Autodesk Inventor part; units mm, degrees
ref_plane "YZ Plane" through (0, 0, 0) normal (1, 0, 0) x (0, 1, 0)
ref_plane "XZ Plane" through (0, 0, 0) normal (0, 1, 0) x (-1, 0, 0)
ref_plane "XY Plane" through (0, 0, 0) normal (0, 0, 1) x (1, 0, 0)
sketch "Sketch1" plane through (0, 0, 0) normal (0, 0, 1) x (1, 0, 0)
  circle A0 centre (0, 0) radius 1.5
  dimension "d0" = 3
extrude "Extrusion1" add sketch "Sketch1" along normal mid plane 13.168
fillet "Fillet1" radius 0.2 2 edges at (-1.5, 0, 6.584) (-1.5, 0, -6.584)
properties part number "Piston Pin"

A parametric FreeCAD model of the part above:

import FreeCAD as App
import Part
import Sketcher
from FreeCAD import Vector


def edges_at(feature, points):
    """Names of the edges that pass closest to the given points."""
    edges = feature.Shape.Edges
    near = lambda p: min(range(len(edges)), key=lambda i: edges[i].distToShape(Part.Vertex(*p))[0])
    return sorted({f"Edge{near(p) + 1}" for p in points})

doc = App.newDocument("Part")
body = doc.addObject("PartDesign::Body", "Body")

# Sketch on XY plane
sketch1 = body.newObject("Sketcher::SketchObject", "Sketch")
sketch1.AttachmentSupport = (doc.getObject("XY_Plane"), [""])
sketch1.MapMode = "FlatFace"
sketch1.addGeometry(Part.Circle(Vector(0, 0, 0), Vector(0, 0, 1), 1.5), False)
sketch1.addConstraint(Sketcher.Constraint("Coincident", 0, 3, -1, 1))
sketch1.addConstraint(Sketcher.Constraint("Diameter", 0, 3.0))
pad1 = body.newObject("PartDesign::Pad", "Pad")
pad1.Profile = sketch1
pad1.Length = 13.168
pad1.Midplane = True
doc.recompute()

fillet = body.newObject("PartDesign::Fillet", "Fillet")
fillet.Base = (pad1, edges_at(pad1, [(-1.5, 0, 6.584), (-1.5, 0, -6.584)]))
fillet.Radius = 0.2

doc.recompute()
